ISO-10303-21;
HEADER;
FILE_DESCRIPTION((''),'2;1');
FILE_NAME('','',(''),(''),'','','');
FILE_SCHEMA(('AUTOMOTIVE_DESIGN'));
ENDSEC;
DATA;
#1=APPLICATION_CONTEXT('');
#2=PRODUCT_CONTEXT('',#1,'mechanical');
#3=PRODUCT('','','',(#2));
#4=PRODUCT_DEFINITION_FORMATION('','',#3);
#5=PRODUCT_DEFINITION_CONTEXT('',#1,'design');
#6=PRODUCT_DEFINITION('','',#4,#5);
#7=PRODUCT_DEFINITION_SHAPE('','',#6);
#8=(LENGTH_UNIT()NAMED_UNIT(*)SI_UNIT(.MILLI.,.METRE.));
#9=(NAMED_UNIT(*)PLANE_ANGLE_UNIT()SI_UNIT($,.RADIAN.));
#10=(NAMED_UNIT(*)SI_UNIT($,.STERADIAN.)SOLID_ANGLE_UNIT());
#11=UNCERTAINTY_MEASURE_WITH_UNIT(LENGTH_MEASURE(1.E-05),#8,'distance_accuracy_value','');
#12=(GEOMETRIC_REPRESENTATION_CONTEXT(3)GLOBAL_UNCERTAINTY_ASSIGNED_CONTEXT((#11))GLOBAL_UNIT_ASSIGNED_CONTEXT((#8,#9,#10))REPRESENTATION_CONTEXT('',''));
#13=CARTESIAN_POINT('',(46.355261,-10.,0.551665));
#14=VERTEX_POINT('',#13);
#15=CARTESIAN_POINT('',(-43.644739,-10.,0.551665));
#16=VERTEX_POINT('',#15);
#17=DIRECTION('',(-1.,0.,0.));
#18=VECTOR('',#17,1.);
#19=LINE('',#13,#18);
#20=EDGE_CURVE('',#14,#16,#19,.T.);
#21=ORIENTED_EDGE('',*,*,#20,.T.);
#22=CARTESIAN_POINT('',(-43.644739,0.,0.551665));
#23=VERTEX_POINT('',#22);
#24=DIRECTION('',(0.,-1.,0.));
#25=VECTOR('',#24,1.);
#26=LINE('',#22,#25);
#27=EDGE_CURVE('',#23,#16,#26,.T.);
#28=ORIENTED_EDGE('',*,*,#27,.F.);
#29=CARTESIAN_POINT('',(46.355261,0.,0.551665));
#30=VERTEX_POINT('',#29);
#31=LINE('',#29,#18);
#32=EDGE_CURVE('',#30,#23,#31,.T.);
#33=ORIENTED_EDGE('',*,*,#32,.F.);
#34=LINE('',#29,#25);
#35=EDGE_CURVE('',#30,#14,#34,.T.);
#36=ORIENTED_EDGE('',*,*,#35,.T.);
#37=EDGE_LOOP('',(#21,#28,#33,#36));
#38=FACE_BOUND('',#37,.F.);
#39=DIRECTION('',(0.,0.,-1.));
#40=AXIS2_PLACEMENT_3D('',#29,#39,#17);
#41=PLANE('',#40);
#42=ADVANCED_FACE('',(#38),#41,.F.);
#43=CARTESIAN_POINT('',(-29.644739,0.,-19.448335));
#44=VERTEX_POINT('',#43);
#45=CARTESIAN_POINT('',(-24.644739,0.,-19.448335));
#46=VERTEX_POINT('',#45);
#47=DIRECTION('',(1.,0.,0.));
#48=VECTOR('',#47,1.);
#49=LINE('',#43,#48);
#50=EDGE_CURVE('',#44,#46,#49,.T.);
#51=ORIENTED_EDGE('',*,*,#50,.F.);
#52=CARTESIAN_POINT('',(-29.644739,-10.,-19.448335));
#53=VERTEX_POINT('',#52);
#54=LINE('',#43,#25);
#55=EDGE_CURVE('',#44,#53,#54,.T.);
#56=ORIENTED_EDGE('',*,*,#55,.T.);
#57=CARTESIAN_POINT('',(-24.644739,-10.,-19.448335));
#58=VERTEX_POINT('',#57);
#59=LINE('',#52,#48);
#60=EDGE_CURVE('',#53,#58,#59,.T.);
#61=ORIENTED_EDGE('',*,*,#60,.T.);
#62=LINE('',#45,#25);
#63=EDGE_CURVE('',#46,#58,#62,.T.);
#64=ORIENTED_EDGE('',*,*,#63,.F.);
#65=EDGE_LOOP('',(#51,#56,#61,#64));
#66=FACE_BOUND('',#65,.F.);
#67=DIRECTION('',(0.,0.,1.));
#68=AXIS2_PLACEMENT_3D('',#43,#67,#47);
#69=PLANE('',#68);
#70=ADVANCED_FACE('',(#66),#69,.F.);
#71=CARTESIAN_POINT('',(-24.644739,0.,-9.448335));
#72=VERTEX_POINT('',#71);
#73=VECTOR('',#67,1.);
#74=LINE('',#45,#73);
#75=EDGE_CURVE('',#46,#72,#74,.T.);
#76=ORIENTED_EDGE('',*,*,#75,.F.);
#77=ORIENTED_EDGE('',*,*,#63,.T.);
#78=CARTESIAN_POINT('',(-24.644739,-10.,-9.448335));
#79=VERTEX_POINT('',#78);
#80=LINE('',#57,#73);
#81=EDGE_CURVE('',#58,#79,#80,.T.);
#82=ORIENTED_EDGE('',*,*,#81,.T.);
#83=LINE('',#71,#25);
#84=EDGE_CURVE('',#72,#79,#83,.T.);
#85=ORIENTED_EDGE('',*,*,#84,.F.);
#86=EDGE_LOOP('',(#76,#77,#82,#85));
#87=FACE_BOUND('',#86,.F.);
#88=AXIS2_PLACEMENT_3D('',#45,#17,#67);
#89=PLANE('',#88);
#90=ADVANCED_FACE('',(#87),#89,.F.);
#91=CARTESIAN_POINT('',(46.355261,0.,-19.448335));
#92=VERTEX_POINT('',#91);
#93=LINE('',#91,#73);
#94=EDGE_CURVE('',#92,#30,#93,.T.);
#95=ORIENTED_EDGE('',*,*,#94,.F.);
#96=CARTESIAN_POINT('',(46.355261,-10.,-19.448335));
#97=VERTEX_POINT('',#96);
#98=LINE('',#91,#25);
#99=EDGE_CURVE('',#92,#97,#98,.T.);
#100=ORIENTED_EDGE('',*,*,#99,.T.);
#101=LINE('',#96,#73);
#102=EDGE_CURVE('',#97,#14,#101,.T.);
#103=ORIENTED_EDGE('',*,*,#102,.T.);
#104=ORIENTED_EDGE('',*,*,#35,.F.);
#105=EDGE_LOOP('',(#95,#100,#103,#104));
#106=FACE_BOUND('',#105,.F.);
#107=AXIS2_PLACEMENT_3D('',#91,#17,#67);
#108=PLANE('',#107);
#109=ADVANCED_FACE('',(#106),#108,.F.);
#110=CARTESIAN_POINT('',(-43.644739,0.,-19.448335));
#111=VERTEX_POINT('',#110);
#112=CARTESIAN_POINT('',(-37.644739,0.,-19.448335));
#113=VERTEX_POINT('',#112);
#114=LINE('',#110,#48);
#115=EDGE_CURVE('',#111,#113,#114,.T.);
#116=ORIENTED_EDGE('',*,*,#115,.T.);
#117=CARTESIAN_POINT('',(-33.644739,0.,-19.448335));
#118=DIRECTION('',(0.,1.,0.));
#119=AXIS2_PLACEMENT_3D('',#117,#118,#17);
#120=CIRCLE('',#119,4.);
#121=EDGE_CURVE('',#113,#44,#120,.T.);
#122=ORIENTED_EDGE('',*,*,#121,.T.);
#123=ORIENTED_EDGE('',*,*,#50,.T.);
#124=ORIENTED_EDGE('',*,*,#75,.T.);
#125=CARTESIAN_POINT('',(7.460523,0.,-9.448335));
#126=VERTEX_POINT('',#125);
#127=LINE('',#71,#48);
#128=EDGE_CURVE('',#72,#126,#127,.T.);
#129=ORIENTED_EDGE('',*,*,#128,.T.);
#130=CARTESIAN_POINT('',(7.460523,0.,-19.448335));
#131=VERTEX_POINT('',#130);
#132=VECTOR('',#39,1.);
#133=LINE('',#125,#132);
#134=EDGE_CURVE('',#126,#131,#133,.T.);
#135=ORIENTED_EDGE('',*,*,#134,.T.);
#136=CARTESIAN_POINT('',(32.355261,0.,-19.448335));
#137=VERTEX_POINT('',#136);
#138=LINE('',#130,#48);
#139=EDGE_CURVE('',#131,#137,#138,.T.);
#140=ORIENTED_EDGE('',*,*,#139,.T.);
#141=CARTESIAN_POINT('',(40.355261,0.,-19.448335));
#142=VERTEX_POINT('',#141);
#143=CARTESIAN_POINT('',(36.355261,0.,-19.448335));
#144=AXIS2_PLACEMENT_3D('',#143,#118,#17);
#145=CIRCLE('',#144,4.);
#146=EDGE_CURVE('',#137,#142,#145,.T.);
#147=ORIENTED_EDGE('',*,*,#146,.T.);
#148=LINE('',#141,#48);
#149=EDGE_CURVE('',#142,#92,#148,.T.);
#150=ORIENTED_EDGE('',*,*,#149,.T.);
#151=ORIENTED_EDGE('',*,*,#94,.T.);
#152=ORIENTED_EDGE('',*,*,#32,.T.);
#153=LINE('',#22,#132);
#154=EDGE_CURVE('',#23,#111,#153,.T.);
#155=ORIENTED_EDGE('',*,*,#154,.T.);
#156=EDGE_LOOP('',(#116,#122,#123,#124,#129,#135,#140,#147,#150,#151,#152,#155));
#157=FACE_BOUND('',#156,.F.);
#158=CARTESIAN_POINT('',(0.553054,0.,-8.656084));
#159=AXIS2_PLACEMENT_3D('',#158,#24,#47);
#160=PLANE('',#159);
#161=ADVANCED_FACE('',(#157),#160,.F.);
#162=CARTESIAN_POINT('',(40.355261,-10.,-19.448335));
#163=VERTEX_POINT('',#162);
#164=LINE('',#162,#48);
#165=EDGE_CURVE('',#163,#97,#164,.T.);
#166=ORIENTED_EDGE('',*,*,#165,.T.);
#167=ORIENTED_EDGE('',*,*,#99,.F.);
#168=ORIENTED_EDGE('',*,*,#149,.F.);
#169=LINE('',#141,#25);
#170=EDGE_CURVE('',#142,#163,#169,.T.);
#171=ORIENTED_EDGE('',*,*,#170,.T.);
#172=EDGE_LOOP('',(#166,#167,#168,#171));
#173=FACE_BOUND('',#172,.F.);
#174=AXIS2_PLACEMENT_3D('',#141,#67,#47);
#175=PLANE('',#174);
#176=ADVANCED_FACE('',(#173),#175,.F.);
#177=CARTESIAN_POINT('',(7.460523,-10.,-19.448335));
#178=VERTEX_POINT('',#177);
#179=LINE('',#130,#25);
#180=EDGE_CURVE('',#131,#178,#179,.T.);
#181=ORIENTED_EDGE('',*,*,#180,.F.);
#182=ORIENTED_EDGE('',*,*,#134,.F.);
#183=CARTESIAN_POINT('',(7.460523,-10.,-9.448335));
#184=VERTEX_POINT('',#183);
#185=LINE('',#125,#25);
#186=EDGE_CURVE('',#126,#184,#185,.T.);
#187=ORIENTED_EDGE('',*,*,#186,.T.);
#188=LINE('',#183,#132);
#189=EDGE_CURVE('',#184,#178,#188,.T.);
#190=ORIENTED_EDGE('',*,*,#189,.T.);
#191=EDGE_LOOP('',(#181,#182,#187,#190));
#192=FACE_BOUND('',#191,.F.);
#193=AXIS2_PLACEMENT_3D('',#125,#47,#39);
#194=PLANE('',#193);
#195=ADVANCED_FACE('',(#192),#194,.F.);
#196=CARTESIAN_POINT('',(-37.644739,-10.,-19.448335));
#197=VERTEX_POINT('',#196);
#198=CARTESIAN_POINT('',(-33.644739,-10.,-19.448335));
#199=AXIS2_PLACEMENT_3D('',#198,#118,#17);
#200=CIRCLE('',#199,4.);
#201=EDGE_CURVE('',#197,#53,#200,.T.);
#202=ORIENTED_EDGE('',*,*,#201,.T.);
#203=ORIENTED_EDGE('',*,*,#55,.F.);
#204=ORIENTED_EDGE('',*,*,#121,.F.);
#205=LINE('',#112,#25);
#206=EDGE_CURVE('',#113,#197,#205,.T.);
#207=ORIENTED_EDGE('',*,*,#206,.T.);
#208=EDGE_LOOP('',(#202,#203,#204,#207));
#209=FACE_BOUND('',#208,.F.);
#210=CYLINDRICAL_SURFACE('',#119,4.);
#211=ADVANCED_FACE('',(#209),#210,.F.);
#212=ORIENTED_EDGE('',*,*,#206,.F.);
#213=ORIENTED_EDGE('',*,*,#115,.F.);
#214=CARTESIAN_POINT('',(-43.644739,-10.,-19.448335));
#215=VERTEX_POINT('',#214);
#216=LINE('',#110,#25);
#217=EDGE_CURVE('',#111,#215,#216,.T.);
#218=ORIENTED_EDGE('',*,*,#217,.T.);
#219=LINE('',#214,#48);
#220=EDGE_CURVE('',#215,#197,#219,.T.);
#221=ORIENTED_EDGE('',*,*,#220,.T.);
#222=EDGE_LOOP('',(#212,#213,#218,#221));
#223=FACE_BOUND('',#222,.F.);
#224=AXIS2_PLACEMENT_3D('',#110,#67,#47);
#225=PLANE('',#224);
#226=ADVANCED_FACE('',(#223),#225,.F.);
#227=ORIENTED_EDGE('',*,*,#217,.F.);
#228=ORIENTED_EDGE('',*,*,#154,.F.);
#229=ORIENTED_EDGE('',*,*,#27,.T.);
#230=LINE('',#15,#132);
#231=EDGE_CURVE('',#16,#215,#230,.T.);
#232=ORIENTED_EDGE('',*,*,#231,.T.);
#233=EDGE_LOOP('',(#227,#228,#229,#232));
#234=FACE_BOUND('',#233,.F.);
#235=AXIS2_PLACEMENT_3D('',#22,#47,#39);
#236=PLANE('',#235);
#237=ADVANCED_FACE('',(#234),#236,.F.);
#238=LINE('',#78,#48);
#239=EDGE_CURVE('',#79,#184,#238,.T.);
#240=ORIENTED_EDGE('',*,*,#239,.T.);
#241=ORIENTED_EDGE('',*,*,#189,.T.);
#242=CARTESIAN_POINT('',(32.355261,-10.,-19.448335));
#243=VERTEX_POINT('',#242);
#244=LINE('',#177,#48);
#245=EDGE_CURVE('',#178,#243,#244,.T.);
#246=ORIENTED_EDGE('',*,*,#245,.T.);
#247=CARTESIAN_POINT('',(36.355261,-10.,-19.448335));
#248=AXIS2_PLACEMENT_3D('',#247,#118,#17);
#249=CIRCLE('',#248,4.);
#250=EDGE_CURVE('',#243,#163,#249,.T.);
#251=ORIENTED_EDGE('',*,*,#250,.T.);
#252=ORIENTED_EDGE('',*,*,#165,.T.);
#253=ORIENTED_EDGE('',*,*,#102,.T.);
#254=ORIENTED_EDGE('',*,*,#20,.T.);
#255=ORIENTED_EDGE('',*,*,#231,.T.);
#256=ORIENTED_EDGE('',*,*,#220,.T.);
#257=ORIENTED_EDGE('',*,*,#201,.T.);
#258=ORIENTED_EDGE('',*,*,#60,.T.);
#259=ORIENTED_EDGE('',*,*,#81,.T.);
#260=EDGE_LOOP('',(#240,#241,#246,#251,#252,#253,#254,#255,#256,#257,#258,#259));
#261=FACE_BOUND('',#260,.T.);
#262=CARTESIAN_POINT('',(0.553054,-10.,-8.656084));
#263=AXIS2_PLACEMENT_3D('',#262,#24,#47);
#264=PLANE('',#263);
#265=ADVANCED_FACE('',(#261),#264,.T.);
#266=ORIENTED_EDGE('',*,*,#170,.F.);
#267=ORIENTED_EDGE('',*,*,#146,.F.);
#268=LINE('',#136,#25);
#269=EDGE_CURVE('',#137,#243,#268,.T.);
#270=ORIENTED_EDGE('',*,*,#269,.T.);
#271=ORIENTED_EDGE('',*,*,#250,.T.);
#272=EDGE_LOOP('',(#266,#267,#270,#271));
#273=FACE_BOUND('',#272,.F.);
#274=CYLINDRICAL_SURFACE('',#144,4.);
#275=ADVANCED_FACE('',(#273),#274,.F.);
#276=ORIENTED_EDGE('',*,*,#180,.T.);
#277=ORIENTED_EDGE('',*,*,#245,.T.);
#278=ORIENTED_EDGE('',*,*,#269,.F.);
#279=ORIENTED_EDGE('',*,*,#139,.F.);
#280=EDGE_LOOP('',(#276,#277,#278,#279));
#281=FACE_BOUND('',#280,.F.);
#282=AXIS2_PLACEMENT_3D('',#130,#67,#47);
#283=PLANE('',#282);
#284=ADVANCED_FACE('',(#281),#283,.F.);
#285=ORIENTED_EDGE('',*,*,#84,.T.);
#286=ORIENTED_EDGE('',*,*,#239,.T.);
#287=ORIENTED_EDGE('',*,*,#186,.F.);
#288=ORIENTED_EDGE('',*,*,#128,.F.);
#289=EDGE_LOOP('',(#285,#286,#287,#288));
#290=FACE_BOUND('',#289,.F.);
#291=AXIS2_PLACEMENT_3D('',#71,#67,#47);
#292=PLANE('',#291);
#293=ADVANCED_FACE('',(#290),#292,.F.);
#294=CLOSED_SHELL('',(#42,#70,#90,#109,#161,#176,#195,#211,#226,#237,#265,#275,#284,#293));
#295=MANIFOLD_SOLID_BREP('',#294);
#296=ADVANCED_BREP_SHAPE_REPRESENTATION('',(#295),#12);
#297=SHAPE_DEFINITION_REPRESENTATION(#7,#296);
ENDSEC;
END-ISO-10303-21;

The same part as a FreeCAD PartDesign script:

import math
import FreeCAD as App
import Part
import Sketcher
from FreeCAD import Vector
Q = App.Units.Quantity

doc = App.newDocument("Part")
body = doc.addObject("PartDesign::Body", "Body")

# Sketch on XZ plane
sketch1 = doc.addObject("Sketcher::SketchObject", "Sketch")
body.addObject(sketch1)
sketch1.AttachmentSupport = (doc.XZ_Plane, [""])
sketch1.MapMode = "FlatFace"
sketch1.addGeometry([
    Part.ArcOfCircle(Part.Circle(Vector(-33.6, -19.4, 0), Vector(0, 0, 1), 4), math.radians(0), math.radians(180)),  # 0
    Part.LineSegment(Vector(-29.6, -19.4, 0), Vector(-24.6, -19.4, 0)),  # 1
    Part.LineSegment(Vector(-24.6, -19.4, 0), Vector(-24.6, -9.4, 0)),  # 2
    Part.LineSegment(Vector(-24.6, -9.4, 0), Vector(7.5, -9.4, 0)),  # 3
    Part.LineSegment(Vector(7.5, -9.4, 0), Vector(7.5, -19.4, 0)),  # 4
    Part.LineSegment(Vector(7.5, -19.4, 0), Vector(32.4, -19.4, 0)),  # 5
    Part.ArcOfCircle(Part.Circle(Vector(36.4, -19.4, 0), Vector(0, 0, 1), 4), math.radians(0), math.radians(180)),  # 6
    Part.LineSegment(Vector(40.4, -19.4, 0), Vector(46.4, -19.4, 0)),  # 7
    Part.LineSegment(Vector(46.4, -19.4, 0), Vector(46.4, 0.6, 0)),  # 8
    Part.LineSegment(Vector(46.4, 0.6, 0), Vector(-43.6, 0.6, 0)),  # 9
    Part.LineSegment(Vector(-43.6, 0.6, 0), Vector(-43.6, -19.4, 0)),  # 10
    Part.LineSegment(Vector(-43.6, -19.4, 0), Vector(-37.6, -19.4, 0)),  # 11
], False)
sketch1.addConstraint([
    Sketcher.Constraint("Coincident", 0, 1, 1, 1),
    Sketcher.Constraint("Coincident", 1, 2, 2, 1),
    Sketcher.Constraint("Coincident", 2, 2, 3, 1),
    Sketcher.Constraint("Coincident", 3, 2, 4, 1),
    Sketcher.Constraint("Coincident", 4, 2, 5, 1),
    Sketcher.Constraint("Coincident", 5, 2, 6, 2),
    Sketcher.Constraint("Coincident", 6, 1, 7, 1),
    Sketcher.Constraint("Coincident", 7, 2, 8, 1),
    Sketcher.Constraint("Coincident", 8, 2, 9, 1),
    Sketcher.Constraint("Coincident", 9, 2, 10, 1),
    Sketcher.Constraint("Coincident", 10, 2, 11, 1),
    Sketcher.Constraint("Coincident", 11, 2, 0, 2),
    Sketcher.Constraint("Horizontal", 1),
    Sketcher.Constraint("Vertical", 2),
    Sketcher.Constraint("Horizontal", 3),
    Sketcher.Constraint("Vertical", 4),
    Sketcher.Constraint("Horizontal", 5),
    Sketcher.Constraint("Horizontal", 7),
    Sketcher.Constraint("Vertical", 8),
    Sketcher.Constraint("Horizontal", 9),
    Sketcher.Constraint("Vertical", 10),
    Sketcher.Constraint("Horizontal", 11),
    Sketcher.Constraint("Equal", 0, 6),
    Sketcher.Constraint("Horizontal", 0, 3, 6, 3),
    Sketcher.Constraint("Horizontal", 6, 3, 0, 1),
    Sketcher.Constraint("Horizontal", 1, 2, 4, 2),
    Sketcher.Constraint("Horizontal", 5, 2, 6, 1),
    Sketcher.Constraint("Horizontal", 7, 2, 10, 2),
    Sketcher.Constraint("Equal", 7, 11),
    Sketcher.Constraint("Radius", 0, Q("4 mm")),
    Sketcher.Constraint("DistanceX", 1, 1, 1, 2, Q("5 mm")),
    Sketcher.Constraint("DistanceX", 7, 1, 7, 2, Q("6 mm")),
    Sketcher.Constraint("DistanceX", 9, 2, 9, 1, Q("90 mm")),
    Sketcher.Constraint("DistanceY", 2, 1, 2, 2, Q("10 mm")),
    Sketcher.Constraint("DistanceY", 8, 1, 8, 2, Q("20 mm")),
    Sketcher.Constraint("DistanceX", 3, 1, 3, 2, Q("32.105262 mm")),
    Sketcher.Constraint("DistanceX", 0, 3, -1, 1, Q("33.644739 mm")),
    Sketcher.Constraint("DistanceY", 0, 3, -1, 1, Q("19.448335 mm")),
])
pad1 = doc.addObject("PartDesign::Pad", "Pad")
body.addObject(pad1)
pad1.Profile = sketch1
pad1.Length = 10

doc.recompute()
